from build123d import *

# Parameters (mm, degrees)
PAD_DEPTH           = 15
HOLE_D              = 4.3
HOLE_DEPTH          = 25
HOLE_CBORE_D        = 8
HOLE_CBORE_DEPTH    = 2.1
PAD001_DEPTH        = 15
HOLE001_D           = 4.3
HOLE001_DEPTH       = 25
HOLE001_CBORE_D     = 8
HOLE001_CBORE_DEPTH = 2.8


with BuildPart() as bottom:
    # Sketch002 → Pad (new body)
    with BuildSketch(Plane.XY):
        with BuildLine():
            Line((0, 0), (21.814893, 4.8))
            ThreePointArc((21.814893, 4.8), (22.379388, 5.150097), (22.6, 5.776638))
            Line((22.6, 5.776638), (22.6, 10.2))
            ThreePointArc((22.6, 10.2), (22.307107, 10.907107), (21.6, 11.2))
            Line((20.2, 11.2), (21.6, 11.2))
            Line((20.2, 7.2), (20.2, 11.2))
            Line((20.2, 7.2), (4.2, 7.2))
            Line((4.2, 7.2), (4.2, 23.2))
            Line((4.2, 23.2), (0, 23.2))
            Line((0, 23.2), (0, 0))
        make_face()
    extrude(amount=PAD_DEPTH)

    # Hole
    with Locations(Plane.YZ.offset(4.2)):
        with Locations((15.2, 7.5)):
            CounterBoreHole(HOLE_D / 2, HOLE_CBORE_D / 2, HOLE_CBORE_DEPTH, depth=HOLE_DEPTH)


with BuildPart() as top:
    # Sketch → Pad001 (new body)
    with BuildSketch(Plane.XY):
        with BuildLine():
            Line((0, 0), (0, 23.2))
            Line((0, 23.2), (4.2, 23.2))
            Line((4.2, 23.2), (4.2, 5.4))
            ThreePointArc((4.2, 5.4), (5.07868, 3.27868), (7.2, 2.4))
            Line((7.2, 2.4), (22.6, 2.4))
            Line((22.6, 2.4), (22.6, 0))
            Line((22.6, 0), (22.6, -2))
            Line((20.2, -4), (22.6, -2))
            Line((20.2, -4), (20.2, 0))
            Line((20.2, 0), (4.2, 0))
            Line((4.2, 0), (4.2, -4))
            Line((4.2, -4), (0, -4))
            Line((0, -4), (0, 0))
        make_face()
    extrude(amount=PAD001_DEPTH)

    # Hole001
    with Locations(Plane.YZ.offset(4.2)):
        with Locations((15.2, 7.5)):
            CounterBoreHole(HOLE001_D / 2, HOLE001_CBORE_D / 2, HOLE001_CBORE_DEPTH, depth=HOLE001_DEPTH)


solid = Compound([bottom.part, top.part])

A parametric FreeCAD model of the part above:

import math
import FreeCAD as App
import Part
import Sketcher

doc = App.newDocument("Part")
params = doc.addObject("Spreadsheet::Sheet", "Params")
for row, (alias, value) in enumerate([
    ("sketch1_radius", "0.999999 mm"),
    ("sketch1_width", "16 mm"),
    ("sketch1_height", "4 mm"),
    ("sketch1_width2", "1.4 mm"),
    ("sketch1_width3", "4.2 mm"),
    ("pad1_length", "15 mm"),
    ("sketch2_diameter", "4.3 mm"),
    ("hole_diameter", "4.3 mm"),
    ("hole_depth", "25 mm"),
    ("hole_cbore_diameter", "8 mm"),
    ("hole_cbore_depth", "2.1 mm"),
    ("sketch3_radius", "3.000001 mm"),
    ("sketch3_width", "16 mm"),
    ("sketch3_height", "4 mm"),
    ("sketch3_width2", "4.2 mm"),
    ("sketch3_width3", "15.4 mm"),
    ("pad2_length", "15 mm"),
    ("sketch4_diameter", "4.3 mm"),
    ("hole2_diameter", "4.3 mm"),
    ("hole2_depth", "25 mm"),
    ("hole2_cbore_diameter", "8 mm"),
    ("hole2_cbore_depth", "2.8 mm"),
], start=1):
    params.set(f"A{row}", alias)
    params.set(f"B{row}", "=" + value)
    params.setAlias(f"B{row}", alias)

body = doc.addObject("PartDesign::Body", "Body")

sketch1 = doc.addObject("Sketcher::SketchObject", "Sketch")
body.addObject(sketch1)
sketch1.AttachmentSupport = (doc.XY_Plane, [""])
sketch1.MapMode = "FlatFace"
sketch1.addGeometry(Part.LineSegment(App.Vector(0, 0, 0), App.Vector(21.8, 4.8, 0)), False)
sketch1.addGeometry(Part.ArcOfCircle(Part.Circle(App.Vector(21.6, 5.8, 0), App.Vector(0, 0, 1), 1), math.radians(-78), math.radians(0)), False)
sketch1.addGeometry(Part.LineSegment(App.Vector(22.6, 5.8, 0), App.Vector(22.6, 10.2, 0)), False)
sketch1.addGeometry(Part.ArcOfCircle(Part.Circle(App.Vector(21.6, 10.2, 0), App.Vector(0, 0, 1), 1), math.radians(0), math.radians(90)), False)
sketch1.addGeometry(Part.LineSegment(App.Vector(21.6, 11.2, 0), App.Vector(20.2, 11.2, 0)), False)
sketch1.addGeometry(Part.LineSegment(App.Vector(20.2, 11.2, 0), App.Vector(20.2, 7.2, 0)), False)
sketch1.addGeometry(Part.LineSegment(App.Vector(20.2, 7.2, 0), App.Vector(4.2, 7.2, 0)), False)
sketch1.addGeometry(Part.LineSegment(App.Vector(4.2, 7.2, 0), App.Vector(4.2, 23.2, 0)), False)
sketch1.addGeometry(Part.LineSegment(App.Vector(4.2, 23.2, 0), App.Vector(0, 23.2, 0)), False)
sketch1.addGeometry(Part.LineSegment(App.Vector(0, 23.2, 0), App.Vector(0, 0, 0)), False)
sketch1.addConstraint(Sketcher.Constraint("Coincident", 0, 2, 1, 1))
sketch1.addConstraint(Sketcher.Constraint("Tangent", 1, 2, 2, 1))
sketch1.addConstraint(Sketcher.Constraint("Tangent", 2, 2, 3, 1))
sketch1.addConstraint(Sketcher.Constraint("Tangent", 3, 2, 4, 1))
sketch1.addConstraint(Sketcher.Constraint("Coincident", 4, 2, 5, 1))
sketch1.addConstraint(Sketcher.Constraint("Coincident", 5, 2, 6, 1))
sketch1.addConstraint(Sketcher.Constraint("Coincident", 6, 2, 7, 1))
sketch1.addConstraint(Sketcher.Constraint("Coincident", 7, 2, 8, 1))
sketch1.addConstraint(Sketcher.Constraint("Coincident", 8, 2, 9, 1))
sketch1.addConstraint(Sketcher.Constraint("Coincident", 9, 2, 0, 1))
sketch1.addConstraint(Sketcher.Constraint("Vertical", 2))
sketch1.addConstraint(Sketcher.Constraint("Horizontal", 4))
sketch1.addConstraint(Sketcher.Constraint("Vertical", 5))
sketch1.addConstraint(Sketcher.Constraint("Horizontal", 6))
sketch1.addConstraint(Sketcher.Constraint("Vertical", 7))
sketch1.addConstraint(Sketcher.Constraint("Horizontal", 8))
sketch1.addConstraint(Sketcher.Constraint("Vertical", 9))
sketch1.addConstraint(Sketcher.Constraint("Coincident", 9, 2, -1, 1))
sketch1.addConstraint(Sketcher.Constraint("Equal", 6, 7))
sketch1.addConstraint(Sketcher.Constraint("Radius", 3, 0.999999))
sketch1.addConstraint(Sketcher.Constraint("DistanceX", 6, 2, 6, 1, 16.0))
sketch1.addConstraint(Sketcher.Constraint("DistanceY", 5, 2, 5, 1, 4.0))
sketch1.addConstraint(Sketcher.Constraint("DistanceX", 4, 2, 4, 1, 1.4))
sketch1.addConstraint(Sketcher.Constraint("DistanceX", 8, 2, 8, 1, 4.2))
sketch1.addConstraint(Sketcher.Constraint("DistanceY", 9, 2, 9, 1, 23.2))
sketch1.addConstraint(Sketcher.Constraint("DistanceY", -1, 1, 0, 2, 4.8))
sketch1.addConstraint(Sketcher.Constraint("Radius", 1, 1.000002))
sketch1.addConstraint(Sketcher.Constraint("DistanceY", 2, 1, 2, 2, 4.423362))
sketch1.setExpression("Constraints[19]", "Params.sketch1_radius")
sketch1.setExpression("Constraints[20]", "Params.sketch1_width")
sketch1.setExpression("Constraints[21]", "Params.sketch1_height")
sketch1.setExpression("Constraints[22]", "Params.sketch1_width2")
sketch1.setExpression("Constraints[23]", "Params.sketch1_width3")
pad1 = doc.addObject("PartDesign::Pad", "Pad")
body.addObject(pad1)
pad1.Profile = sketch1
pad1.setExpression("Length", "Params.pad1_length")

sketch2 = doc.addObject("Sketcher::SketchObject", "Sketch001")
body.addObject(sketch2)
sketch2.AttachmentSupport = (doc.YZ_Plane, [""])
sketch2.MapMode = "FlatFace"
sketch2.AttachmentOffset = App.Placement(App.Vector(0, 0, 4.2), App.Rotation())
sketch2.addGeometry(Part.Circle(App.Vector(15.2, 7.5, 0), App.Vector(0, 0, 1), 2.1), False)
sketch2.addConstraint(Sketcher.Constraint("Diameter", 0, 4.3))
sketch2.addConstraint(Sketcher.Constraint("DistanceX", -1, 1, 0, 3, 15.2))
sketch2.addConstraint(Sketcher.Constraint("DistanceY", -1, 1, 0, 3, 7.5))
sketch2.setExpression("Constraints[0]", "Params.sketch2_diameter")
doc.recompute()
hole = doc.addObject("PartDesign::Hole", "Hole")
body.addObject(hole)
hole.Profile = sketch2
hole.ThreadType = "None"
hole.setExpression("Diameter", "Params.hole_diameter")
hole.DepthType = "Dimension"
hole.setExpression("Depth", "Params.hole_depth")
hole.DrillPoint = "Flat"
hole.HoleCutType = "Counterbore"
hole.setExpression("HoleCutDiameter", "Params.hole_cbore_diameter")
hole.setExpression("HoleCutDepth", "Params.hole_cbore_depth")
body2 = doc.addObject("PartDesign::Body", "Body001")

sketch3 = doc.addObject("Sketcher::SketchObject", "Sketch002")
body2.addObject(sketch3)
sketch3.AttachmentSupport = (doc.getObject("XY_Plane001"), [""])
sketch3.MapMode = "FlatFace"
sketch3.addGeometry(Part.LineSegment(App.Vector(4.2, 23.2, 0), App.Vector(0, 23.2, 0)), False)
sketch3.addGeometry(Part.LineSegment(App.Vector(0, 23.2, 0), App.Vector(0, -4, 0)), False)
sketch3.addGeometry(Part.LineSegment(App.Vector(0, -4, 0), App.Vector(4.2, -4, 0)), False)
sketch3.addGeometry(Part.LineSegment(App.Vector(4.2, -4, 0), App.Vector(4.2, 0, 0)), False)
sketch3.addGeometry(Part.LineSegment(App.Vector(4.2, 0, 0), App.Vector(20.2, 0, 0)), False)
sketch3.addGeometry(Part.LineSegment(App.Vector(20.2, 0, 0), App.Vector(20.2, -4, 0)), False)
sketch3.addGeometry(Part.LineSegment(App.Vector(20.2, -4, 0), App.Vector(22.6, -2, 0)), False)
sketch3.addGeometry(Part.LineSegment(App.Vector(22.6, -2, 0), App.Vector(22.6, 2.4, 0)), False)
sketch3.addGeometry(Part.LineSegment(App.Vector(22.6, 2.4, 0), App.Vector(7.2, 2.4, 0)), False)
sketch3.addGeometry(Part.ArcOfCircle(Part.Circle(App.Vector(7.2, 5.4, 0), App.Vector(0, 0, 1), 3), math.radians(-180), math.radians(-90)), False)
sketch3.addGeometry(Part.LineSegment(App.Vector(4.2, 5.4, 0), App.Vector(4.2, 23.2, 0)), False)
sketch3.addConstraint(Sketcher.Constraint("Coincident", 0, 2, 1, 1))
sketch3.addConstraint(Sketcher.Constraint("Coincident", 1, 2, 2, 1))
sketch3.addConstraint(Sketcher.Constraint("Coincident", 2, 2, 3, 1))
sketch3.addConstraint(Sketcher.Constraint("Coincident", 3, 2, 4, 1))
sketch3.addConstraint(Sketcher.Constraint("Coincident", 4, 2, 5, 1))
sketch3.addConstraint(Sketcher.Constraint("Coincident", 5, 2, 6, 1))
sketch3.addConstraint(Sketcher.Constraint("Coincident", 6, 2, 7, 1))
sketch3.addConstraint(Sketcher.Constraint("Coincident", 7, 2, 8, 1))
sketch3.addConstraint(Sketcher.Constraint("Tangent", 8, 2, 9, 2))
sketch3.addConstraint(Sketcher.Constraint("Tangent", 9, 1, 10, 1))
sketch3.addConstraint(Sketcher.Constraint("Coincident", 10, 2, 0, 1))
sketch3.addConstraint(Sketcher.Constraint("Horizontal", 0))
sketch3.addConstraint(Sketcher.Constraint("Vertical", 1))
sketch3.addConstraint(Sketcher.Constraint("Horizontal", 2))
sketch3.addConstraint(Sketcher.Constraint("Vertical", 3))
sketch3.addConstraint(Sketcher.Constraint("Horizontal", 4))
sketch3.addConstraint(Sketcher.Constraint("Vertical", 5))
sketch3.addConstraint(Sketcher.Constraint("Vertical", 7))
sketch3.addConstraint(Sketcher.Constraint("Horizontal", 8))
sketch3.addConstraint(Sketcher.Constraint("Vertical", 10))
sketch3.addConstraint(Sketcher.Constraint("PointOnObject", 0, 2, -2))
sketch3.addConstraint(Sketcher.Constraint("PointOnObject", 3, 2, -1))
sketch3.addConstraint(Sketcher.Constraint("Horizontal", 2, 2, 5, 2))
sketch3.addConstraint(Sketcher.Constraint("Vertical", 3, 2, 9, 1))
sketch3.addConstraint(Sketcher.Constraint("Radius", 9, 3.000001))
sketch3.addConstraint(Sketcher.Constraint("DistanceX", 4, 1, 4, 2, 16.0))
sketch3.addConstraint(Sketcher.Constraint("DistanceY", 3, 1, 3, 2, 4.0))
sketch3.addConstraint(Sketcher.Constraint("DistanceX", 0, 2, 0, 1, 4.2))
sketch3.addConstraint(Sketcher.Constraint("DistanceX", 8, 2, 8, 1, 15.4))
sketch3.addConstraint(Sketcher.Constraint("DistanceY", 1, 2, 1, 1, 27.2))
sketch3.addConstraint(Sketcher.Constraint("DistanceY", 7, 1, 7, 2, 4.4))
sketch3.addConstraint(Sketcher.Constraint("DistanceY", 10, 1, 10, 2, 17.8))
sketch3.setExpression("Constraints[24]", "Params.sketch3_radius")
sketch3.setExpression("Constraints[25]", "Params.sketch3_width")
sketch3.setExpression("Constraints[26]", "Params.sketch3_height")
sketch3.setExpression("Constraints[27]", "Params.sketch3_width2")
sketch3.setExpression("Constraints[28]", "Params.sketch3_width3")
pad2 = doc.addObject("PartDesign::Pad", "Pad001")
body2.addObject(pad2)
pad2.Profile = sketch3
pad2.setExpression("Length", "Params.pad2_length")

sketch4 = doc.addObject("Sketcher::SketchObject", "Sketch003")
body2.addObject(sketch4)
sketch4.AttachmentSupport = (doc.getObject("YZ_Plane001"), [""])
sketch4.MapMode = "FlatFace"
sketch4.AttachmentOffset = App.Placement(App.Vector(0, 0, 4.2), App.Rotation())
sketch4.addGeometry(Part.Circle(App.Vector(15.2, 7.5, 0), App.Vector(0, 0, 1), 2.1), False)
sketch4.addConstraint(Sketcher.Constraint("Diameter", 0, 4.3))
sketch4.addConstraint(Sketcher.Constraint("DistanceX", -1, 1, 0, 3, 15.2))
sketch4.addConstraint(Sketcher.Constraint("DistanceY", -1, 1, 0, 3, 7.5))
sketch4.setExpression("Constraints[0]", "Params.sketch4_diameter")
doc.recompute()
hole2 = doc.addObject("PartDesign::Hole", "Hole001")
body2.addObject(hole2)
hole2.Profile = sketch4
hole2.ThreadType = "None"
hole2.setExpression("Diameter", "Params.hole2_diameter")
hole2.DepthType = "Dimension"
hole2.setExpression("Depth", "Params.hole2_depth")
hole2.DrillPoint = "Flat"
hole2.HoleCutType = "Counterbore"
hole2.setExpression("HoleCutDiameter", "Params.hole2_cbore_diameter")
hole2.setExpression("HoleCutDepth", "Params.hole2_cbore_depth")

doc.recompute()
